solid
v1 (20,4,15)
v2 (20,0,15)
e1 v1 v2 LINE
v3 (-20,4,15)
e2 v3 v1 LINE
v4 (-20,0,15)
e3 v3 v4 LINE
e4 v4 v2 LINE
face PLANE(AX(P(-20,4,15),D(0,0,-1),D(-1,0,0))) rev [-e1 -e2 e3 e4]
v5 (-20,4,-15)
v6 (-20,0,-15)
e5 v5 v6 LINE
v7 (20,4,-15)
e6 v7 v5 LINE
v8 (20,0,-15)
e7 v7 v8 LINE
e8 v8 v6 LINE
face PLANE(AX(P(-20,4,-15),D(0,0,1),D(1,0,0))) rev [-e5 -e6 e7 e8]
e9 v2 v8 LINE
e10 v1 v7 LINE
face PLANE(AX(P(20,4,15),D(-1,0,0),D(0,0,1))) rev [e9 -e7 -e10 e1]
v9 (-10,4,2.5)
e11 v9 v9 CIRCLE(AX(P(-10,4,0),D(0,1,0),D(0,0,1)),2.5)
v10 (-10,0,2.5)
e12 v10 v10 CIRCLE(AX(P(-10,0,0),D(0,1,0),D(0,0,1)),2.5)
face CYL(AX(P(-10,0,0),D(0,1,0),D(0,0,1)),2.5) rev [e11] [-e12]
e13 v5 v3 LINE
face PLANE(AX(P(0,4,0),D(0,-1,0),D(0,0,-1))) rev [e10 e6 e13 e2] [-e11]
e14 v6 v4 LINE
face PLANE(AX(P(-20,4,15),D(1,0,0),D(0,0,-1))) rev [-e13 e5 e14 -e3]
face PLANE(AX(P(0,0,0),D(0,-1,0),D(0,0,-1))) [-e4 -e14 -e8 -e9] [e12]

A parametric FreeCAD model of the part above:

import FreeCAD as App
import Part
import Sketcher
from FreeCAD import Vector


def add_polygon(sketch, points):
    """Adds a closed chain of lines whose ends are joined by coincident constraints."""
    first, n = sketch.GeometryCount, len(points)
    for a, b in zip(points, points[1:] + points[:1]):
        sketch.addGeometry(Part.LineSegment(App.Vector(*a, 0), App.Vector(*b, 0)), False)
    for i in range(n):
        sketch.addConstraint(Sketcher.Constraint("Coincident", first + i, 2, first + (i + 1) % n, 1))

doc = App.newDocument("Part")
body = doc.addObject("PartDesign::Body", "Body")

sketch1 = doc.addObject("Sketcher::SketchObject", "Sketch")
body.addObject(sketch1)
sketch1.AttachmentSupport = (doc.XZ_Plane, [""])
sketch1.MapMode = "FlatFace"
add_polygon(sketch1, [(-20, -15), (-20, 15), (20, 15), (20, -15)])
sketch1.addConstraint([
    Sketcher.Constraint("Vertical", 0),
    Sketcher.Constraint("Horizontal", 1),
    Sketcher.Constraint("Vertical", 2),
    Sketcher.Constraint("Horizontal", 3),
    Sketcher.Constraint("Symmetric", 0, 2, 2, 2, -1, 1),
    Sketcher.Constraint("DistanceX", 1, 1, 1, 2, 40.0),
    Sketcher.Constraint("DistanceY", 0, 1, 0, 2, 30.0),
])
pad1 = doc.addObject("PartDesign::Pad", "Pad")
body.addObject(pad1)
pad1.Profile = sketch1
pad1.Length = 4
pad1.Reversed = True

sketch2 = doc.addObject("Sketcher::SketchObject", "Sketch001")
body.addObject(sketch2)
sketch2.AttachmentSupport = (doc.XZ_Plane, [""])
sketch2.MapMode = "FlatFace"
sketch2.AttachmentOffset = App.Placement(Vector(0, 0, -4), App.Rotation())
sketch2.addGeometry(Part.Circle(Vector(-10, 0, 0), Vector(0, 0, 1), 2.5), False)
sketch2.addConstraint([
    Sketcher.Constraint("PointOnObject", 0, 3, -1),
    Sketcher.Constraint("Diameter", 0, 5.0),
    Sketcher.Constraint("DistanceX", 0, 3, -1, 1, 10.0),
])
pocket1 = doc.addObject("PartDesign::Pocket", "Pocket")
body.addObject(pocket1)
pocket1.Profile = sketch2
pocket1.Length = 4
pocket1.Reversed = True

doc.recompute()
